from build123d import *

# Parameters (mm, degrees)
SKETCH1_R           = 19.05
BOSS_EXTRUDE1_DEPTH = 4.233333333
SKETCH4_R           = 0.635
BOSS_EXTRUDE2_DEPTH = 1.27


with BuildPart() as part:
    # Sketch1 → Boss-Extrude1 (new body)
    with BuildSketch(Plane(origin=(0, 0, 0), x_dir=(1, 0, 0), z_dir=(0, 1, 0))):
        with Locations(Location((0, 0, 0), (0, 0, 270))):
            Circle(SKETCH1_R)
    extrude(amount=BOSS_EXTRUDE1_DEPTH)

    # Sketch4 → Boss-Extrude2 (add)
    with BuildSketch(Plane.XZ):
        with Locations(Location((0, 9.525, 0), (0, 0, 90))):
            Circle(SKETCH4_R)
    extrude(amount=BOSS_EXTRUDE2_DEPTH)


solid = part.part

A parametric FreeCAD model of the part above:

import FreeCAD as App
import Part
import Sketcher
from FreeCAD import Vector
Q = App.Units.Quantity

doc = App.newDocument("Part")
body = doc.addObject("PartDesign::Body", "Body")

# Sketch on XZ plane
sketch1 = body.newObject("Sketcher::SketchObject", "Sketch")
sketch1.AttachmentSupport = (doc.getObject("XZ_Plane"), [""])
sketch1.MapMode = "FlatFace"
sketch1.addGeometry(Part.Circle(Vector(0, 0, 0), Vector(0, 0, 1), 19), False)
sketch1.addConstraint(Sketcher.Constraint("Coincident", 0, 3, -1, 1))
sketch1.addConstraint(Sketcher.Constraint("Diameter", 0, Q("1.5 in")))
pad1 = body.newObject("PartDesign::Pad", "Pad")
pad1.Profile = sketch1
pad1.Length = 4.233333
pad1.Reversed = True

# Sketch on XZ plane
sketch2 = body.newObject("Sketcher::SketchObject", "Sketch001")
sketch2.AttachmentSupport = (doc.getObject("XZ_Plane"), [""])
sketch2.MapMode = "FlatFace"
sketch2.addGeometry(Part.Circle(Vector(0, 9.5, 0), Vector(0, 0, 1), 0.6), False)
sketch2.addConstraint(Sketcher.Constraint("PointOnObject", 0, 3, -2))
sketch2.addConstraint(Sketcher.Constraint("Diameter", 0, Q("0.05 in")))
sketch2.addConstraint(Sketcher.Constraint("DistanceY", -1, 1, 0, 3, Q("0.375 in")))
pad2 = body.newObject("PartDesign::Pad", "Pad001")
pad2.Profile = sketch2
pad2.Length = Q("0.05 in")

doc.recompute()
